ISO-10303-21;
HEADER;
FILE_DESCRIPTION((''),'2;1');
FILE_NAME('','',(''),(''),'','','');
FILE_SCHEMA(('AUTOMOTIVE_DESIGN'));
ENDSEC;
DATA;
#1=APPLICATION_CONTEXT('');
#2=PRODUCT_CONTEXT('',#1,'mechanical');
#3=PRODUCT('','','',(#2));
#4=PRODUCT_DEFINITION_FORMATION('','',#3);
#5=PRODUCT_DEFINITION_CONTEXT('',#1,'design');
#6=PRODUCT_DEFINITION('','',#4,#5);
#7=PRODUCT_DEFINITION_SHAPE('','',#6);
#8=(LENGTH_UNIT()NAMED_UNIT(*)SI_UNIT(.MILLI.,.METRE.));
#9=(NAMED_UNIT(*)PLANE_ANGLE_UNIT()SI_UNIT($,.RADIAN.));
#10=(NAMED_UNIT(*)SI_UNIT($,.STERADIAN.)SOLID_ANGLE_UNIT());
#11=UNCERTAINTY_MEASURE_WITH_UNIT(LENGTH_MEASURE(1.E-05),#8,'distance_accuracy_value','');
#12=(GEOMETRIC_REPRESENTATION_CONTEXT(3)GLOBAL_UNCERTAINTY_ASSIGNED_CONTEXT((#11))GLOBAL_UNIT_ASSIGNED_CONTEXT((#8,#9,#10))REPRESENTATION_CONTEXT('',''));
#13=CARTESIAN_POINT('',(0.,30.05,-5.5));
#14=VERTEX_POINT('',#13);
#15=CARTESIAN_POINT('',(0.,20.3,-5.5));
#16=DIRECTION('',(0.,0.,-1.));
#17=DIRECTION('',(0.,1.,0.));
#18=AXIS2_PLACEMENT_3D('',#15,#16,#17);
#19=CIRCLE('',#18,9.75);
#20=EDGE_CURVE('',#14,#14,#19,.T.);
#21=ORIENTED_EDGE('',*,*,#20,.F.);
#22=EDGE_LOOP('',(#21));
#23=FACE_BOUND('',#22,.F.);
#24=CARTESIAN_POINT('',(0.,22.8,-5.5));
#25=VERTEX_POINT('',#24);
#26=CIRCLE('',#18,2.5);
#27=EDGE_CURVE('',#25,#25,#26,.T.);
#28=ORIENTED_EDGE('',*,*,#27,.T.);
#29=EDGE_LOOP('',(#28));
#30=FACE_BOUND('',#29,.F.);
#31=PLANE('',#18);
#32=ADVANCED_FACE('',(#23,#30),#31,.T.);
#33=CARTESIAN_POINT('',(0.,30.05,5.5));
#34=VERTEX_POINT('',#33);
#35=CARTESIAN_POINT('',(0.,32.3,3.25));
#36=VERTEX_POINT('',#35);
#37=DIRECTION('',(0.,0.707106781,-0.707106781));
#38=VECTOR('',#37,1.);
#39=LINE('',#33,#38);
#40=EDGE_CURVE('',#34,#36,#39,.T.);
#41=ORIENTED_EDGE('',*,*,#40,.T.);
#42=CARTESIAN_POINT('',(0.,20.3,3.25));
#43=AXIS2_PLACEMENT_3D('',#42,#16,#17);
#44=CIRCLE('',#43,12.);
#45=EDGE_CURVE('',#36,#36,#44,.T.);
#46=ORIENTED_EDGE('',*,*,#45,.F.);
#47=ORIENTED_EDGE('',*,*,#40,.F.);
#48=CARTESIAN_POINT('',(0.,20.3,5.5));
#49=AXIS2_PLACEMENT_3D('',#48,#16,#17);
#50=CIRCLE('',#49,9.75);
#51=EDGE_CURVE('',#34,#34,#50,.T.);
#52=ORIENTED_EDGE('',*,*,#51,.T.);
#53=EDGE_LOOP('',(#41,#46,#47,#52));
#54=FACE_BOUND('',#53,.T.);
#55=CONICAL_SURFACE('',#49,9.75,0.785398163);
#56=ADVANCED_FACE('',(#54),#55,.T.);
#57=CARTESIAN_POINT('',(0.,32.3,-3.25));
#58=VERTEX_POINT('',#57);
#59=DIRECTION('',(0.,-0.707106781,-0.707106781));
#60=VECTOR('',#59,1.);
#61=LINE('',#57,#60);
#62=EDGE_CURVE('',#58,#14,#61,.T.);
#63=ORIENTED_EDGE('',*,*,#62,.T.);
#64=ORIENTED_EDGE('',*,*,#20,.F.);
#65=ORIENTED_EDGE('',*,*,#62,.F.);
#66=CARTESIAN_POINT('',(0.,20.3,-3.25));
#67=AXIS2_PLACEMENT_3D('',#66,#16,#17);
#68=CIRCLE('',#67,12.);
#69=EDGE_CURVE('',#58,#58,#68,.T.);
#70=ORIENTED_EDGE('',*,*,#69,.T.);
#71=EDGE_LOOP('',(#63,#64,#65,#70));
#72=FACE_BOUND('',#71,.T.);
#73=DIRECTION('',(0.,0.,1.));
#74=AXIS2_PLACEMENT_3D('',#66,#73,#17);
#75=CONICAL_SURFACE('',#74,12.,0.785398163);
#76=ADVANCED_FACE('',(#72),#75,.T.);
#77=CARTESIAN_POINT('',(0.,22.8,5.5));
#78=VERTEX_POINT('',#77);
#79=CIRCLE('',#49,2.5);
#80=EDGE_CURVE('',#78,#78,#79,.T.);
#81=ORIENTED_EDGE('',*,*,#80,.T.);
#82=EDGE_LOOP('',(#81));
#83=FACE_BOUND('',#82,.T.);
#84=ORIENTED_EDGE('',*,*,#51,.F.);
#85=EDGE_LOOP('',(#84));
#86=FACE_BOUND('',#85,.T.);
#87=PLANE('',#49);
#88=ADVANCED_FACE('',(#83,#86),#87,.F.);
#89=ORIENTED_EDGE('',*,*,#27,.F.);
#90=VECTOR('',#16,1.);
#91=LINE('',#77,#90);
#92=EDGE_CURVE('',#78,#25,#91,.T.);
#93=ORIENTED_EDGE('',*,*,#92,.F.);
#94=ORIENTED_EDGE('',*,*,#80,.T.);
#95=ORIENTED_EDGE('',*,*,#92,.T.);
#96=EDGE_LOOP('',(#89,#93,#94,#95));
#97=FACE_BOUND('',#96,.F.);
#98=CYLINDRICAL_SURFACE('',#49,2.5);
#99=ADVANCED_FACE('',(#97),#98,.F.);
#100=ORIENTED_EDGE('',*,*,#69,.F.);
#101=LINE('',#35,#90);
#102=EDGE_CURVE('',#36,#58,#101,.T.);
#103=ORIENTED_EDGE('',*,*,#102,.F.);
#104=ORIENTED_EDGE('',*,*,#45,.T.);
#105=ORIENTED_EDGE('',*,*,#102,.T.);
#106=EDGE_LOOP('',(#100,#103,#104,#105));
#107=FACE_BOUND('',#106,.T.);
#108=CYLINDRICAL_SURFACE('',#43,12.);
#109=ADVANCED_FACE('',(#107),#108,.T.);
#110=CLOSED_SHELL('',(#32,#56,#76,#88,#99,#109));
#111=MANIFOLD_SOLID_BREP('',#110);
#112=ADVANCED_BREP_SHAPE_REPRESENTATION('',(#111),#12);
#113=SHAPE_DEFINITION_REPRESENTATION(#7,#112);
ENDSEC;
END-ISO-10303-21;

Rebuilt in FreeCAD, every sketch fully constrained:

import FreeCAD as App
import Part
import Sketcher

V = App.Vector
Q = App.Units.Quantity


def add_polygon(sketch, points):
    """Adds a closed chain of lines whose ends are joined by coincident constraints."""
    first, n = sketch.GeometryCount, len(points)
    for a, b in zip(points, points[1:] + points[:1]):
        sketch.addGeometry(Part.LineSegment(App.Vector(*a, 0), App.Vector(*b, 0)), False)
    for i in range(n):
        sketch.addConstraint(Sketcher.Constraint("Coincident", first + i, 2, first + (i + 1) % n, 1))

doc = App.newDocument("Part")
body = doc.addObject("PartDesign::Body", "Body")

# Sketch on YZ plane
sketch1 = body.newObject("Sketcher::SketchObject", "Sketch")
sketch1.AttachmentSupport = (doc.getObject("YZ_Plane"), [""])
sketch1.MapMode = "FlatFace"
add_polygon(sketch1, [(22.8, 5.5), (22.8, -5.5), (30.05, -5.5), (32.3, -3.25), (32.3, 3.25), (30.05, 5.5)])  # lines 0-5
sketch1.addGeometry(Part.LineSegment(V(20.3, 5.5, 0), V(20.3, -5.5, 0)), True)  # axis
sketch1.addConstraint([
    Sketcher.Constraint("Vertical", 0),
    Sketcher.Constraint("Horizontal", 1),
    Sketcher.Constraint("Vertical", 3),
    Sketcher.Constraint("Horizontal", 5),
    Sketcher.Constraint("Vertical", 6),
    Sketcher.Constraint("Symmetric", 1, 2, 4, 2, -1),
    Sketcher.Constraint("Perpendicular", 2, 4),
    Sketcher.Constraint("Horizontal", 5, 2, 6, 1),
    Sketcher.Constraint("Horizontal", 1, 2, 6, 2),
    Sketcher.Constraint("Equal", 2, 4),
    Sketcher.Constraint("DistanceY", 0, 2, 0, 1, Q("11 mm")),
    Sketcher.Constraint("DistanceX", 6, 1, 5, 2, Q("2.5 mm")),
    Sketcher.Constraint("DistanceX", 1, 2, 2, 2, Q("2.25 mm")),
    Sketcher.Constraint("DistanceX", 6, 1, 3, 2, Q("12 mm")),
    Sketcher.Constraint("DistanceX", -1, 1, 0, 2, Q("22.8 mm")),
])
revolution = body.newObject("PartDesign::Revolution", "Revolution")
revolution.Profile = sketch1
revolution.ReferenceAxis = (sketch1, ["Axis0"])
revolution.Angle = 360

doc.recompute()
